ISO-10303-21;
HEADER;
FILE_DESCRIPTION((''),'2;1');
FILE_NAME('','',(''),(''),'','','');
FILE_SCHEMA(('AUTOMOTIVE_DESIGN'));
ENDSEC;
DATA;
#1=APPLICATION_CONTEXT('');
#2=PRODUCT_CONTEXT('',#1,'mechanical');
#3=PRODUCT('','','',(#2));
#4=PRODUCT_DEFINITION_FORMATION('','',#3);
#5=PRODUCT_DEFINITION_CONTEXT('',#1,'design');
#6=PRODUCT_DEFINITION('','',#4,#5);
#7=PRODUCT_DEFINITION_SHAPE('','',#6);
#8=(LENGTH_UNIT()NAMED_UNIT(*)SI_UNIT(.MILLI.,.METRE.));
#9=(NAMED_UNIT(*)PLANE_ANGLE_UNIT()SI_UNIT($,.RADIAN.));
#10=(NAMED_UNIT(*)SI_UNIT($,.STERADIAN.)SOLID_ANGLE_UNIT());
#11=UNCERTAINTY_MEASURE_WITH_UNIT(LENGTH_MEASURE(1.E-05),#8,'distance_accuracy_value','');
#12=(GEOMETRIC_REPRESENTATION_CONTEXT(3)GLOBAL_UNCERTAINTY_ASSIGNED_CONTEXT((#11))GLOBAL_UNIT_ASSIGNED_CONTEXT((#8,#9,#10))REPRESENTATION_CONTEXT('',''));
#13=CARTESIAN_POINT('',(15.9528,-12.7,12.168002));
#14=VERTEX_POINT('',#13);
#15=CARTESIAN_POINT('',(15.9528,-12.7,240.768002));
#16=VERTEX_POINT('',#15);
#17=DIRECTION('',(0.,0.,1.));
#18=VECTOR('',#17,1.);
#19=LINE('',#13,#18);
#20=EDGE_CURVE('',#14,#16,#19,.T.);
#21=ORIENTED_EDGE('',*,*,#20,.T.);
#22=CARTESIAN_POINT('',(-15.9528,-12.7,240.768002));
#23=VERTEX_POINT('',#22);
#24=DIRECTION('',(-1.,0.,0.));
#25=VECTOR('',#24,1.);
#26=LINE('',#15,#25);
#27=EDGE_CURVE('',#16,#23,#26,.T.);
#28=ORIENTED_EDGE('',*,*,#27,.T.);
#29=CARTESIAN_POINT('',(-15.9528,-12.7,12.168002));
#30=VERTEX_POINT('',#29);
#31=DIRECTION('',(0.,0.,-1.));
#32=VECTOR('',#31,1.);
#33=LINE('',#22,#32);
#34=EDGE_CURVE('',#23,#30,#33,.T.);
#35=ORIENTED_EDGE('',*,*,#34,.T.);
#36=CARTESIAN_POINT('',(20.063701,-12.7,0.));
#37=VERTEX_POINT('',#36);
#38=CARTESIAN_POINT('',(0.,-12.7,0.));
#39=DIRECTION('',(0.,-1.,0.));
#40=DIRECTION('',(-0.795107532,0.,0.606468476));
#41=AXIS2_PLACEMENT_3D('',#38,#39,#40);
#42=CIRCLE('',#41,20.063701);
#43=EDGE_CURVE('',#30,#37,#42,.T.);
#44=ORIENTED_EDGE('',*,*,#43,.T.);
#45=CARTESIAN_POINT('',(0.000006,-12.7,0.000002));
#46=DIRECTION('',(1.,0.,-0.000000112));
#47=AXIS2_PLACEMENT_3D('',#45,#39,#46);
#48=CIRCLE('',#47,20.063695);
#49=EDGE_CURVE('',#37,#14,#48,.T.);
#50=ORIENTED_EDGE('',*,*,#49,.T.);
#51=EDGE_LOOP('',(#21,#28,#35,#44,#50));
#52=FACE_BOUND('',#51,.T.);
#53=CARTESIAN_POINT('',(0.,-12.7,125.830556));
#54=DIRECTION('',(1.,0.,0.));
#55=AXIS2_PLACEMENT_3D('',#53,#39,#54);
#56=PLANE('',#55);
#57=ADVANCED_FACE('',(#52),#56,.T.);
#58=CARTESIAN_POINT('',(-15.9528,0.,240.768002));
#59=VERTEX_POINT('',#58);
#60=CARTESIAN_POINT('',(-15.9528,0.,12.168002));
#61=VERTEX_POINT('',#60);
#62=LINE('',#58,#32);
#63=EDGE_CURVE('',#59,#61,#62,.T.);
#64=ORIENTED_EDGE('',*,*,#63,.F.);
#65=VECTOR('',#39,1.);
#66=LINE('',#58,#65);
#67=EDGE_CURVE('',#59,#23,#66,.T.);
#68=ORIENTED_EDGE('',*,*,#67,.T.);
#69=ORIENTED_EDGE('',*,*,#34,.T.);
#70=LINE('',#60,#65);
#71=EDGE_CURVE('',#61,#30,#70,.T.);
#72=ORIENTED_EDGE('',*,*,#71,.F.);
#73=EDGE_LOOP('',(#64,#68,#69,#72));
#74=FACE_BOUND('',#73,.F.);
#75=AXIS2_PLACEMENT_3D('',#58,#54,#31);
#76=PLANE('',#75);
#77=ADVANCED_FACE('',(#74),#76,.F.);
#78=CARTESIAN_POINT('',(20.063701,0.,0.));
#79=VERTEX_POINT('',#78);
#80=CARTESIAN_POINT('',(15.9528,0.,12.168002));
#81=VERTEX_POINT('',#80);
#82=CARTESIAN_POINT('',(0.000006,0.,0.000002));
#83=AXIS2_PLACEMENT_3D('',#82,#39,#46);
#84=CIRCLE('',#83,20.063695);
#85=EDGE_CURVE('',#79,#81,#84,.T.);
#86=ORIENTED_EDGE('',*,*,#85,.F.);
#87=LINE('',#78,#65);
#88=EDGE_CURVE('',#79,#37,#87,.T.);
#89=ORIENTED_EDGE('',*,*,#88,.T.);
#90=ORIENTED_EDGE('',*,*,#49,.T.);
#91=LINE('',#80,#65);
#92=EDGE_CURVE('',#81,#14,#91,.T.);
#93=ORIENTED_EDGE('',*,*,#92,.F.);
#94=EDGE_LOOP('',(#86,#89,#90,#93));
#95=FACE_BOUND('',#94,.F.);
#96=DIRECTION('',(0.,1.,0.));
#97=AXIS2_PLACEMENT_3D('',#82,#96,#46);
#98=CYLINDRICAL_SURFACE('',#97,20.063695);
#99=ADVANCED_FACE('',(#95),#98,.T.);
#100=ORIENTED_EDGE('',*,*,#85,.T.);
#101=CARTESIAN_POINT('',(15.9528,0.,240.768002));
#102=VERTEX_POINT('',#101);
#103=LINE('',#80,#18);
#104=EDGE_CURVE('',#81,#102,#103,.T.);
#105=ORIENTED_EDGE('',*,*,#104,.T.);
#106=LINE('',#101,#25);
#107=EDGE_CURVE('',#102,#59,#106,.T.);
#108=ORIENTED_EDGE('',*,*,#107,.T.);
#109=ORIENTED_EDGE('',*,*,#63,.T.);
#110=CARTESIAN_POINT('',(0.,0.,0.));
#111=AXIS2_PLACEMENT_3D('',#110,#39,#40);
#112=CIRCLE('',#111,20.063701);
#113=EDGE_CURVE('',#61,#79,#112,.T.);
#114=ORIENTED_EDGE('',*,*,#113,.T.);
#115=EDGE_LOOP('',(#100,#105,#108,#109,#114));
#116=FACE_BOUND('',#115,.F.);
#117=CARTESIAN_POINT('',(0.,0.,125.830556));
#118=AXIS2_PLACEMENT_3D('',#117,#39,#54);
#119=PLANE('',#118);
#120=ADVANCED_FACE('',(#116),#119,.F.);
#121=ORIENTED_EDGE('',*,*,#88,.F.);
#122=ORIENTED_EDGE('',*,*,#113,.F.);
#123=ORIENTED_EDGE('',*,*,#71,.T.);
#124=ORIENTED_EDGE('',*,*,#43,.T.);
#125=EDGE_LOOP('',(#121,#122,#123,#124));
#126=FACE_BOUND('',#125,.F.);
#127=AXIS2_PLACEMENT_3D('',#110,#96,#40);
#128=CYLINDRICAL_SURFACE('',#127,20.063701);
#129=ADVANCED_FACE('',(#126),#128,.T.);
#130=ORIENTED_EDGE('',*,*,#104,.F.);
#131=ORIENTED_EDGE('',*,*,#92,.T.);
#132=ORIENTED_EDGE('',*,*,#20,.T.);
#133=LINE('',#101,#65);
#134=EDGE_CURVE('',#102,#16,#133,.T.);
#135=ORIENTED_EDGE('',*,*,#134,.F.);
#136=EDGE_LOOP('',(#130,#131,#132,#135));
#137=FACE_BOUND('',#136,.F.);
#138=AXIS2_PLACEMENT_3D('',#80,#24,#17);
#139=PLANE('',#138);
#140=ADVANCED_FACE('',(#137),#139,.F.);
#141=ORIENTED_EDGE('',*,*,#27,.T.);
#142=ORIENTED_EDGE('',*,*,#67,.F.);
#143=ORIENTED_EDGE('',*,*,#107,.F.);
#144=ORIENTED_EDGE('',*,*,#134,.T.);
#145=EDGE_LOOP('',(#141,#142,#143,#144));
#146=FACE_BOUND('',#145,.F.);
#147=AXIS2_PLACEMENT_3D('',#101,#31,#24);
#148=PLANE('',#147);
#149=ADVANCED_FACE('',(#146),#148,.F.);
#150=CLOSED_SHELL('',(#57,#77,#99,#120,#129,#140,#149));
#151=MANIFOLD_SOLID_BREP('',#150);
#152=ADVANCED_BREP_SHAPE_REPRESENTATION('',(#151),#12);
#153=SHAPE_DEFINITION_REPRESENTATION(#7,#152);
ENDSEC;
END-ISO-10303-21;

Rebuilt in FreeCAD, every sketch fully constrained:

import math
import FreeCAD as App
import Part
import Sketcher
Q = App.Units.Quantity

doc = App.newDocument("Part")
body = doc.addObject("PartDesign::Body", "Body")

# Sketch on XZ plane
sketch1 = body.newObject("Sketcher::SketchObject", "Sketch")
sketch1.AttachmentSupport = (doc.getObject("XZ_Plane"), [""])
sketch1.MapMode = "FlatFace"
sketch1.addGeometry(Part.LineSegment(App.Vector(16, 12, 0), App.Vector(16, 241, 0)), False)
sketch1.addGeometry(Part.LineSegment(App.Vector(16, 241, 0), App.Vector(-16, 241, 0)), False)
sketch1.addGeometry(Part.LineSegment(App.Vector(-16, 241, 0), App.Vector(-16, 12, 0)), False)
sketch1.addGeometry(Part.ArcOfCircle(Part.Circle(App.Vector(0, 0, 0), App.Vector(0, 0, 1), 20), math.radians(143), math.radians(360)), False)
sketch1.addGeometry(Part.ArcOfCircle(Part.Circle(App.Vector(0, 0, 0), App.Vector(0, 0, 1), 20), math.radians(0), math.radians(37)), False)
sketch1.addConstraint(Sketcher.Constraint("Coincident", 0, 2, 1, 1))
sketch1.addConstraint(Sketcher.Constraint("Coincident", 1, 2, 2, 1))
sketch1.addConstraint(Sketcher.Constraint("Coincident", 2, 2, 3, 1))
sketch1.addConstraint(Sketcher.Constraint("Tangent", 3, 2, 4, 1))
sketch1.addConstraint(Sketcher.Constraint("Coincident", 4, 2, 0, 1))
sketch1.addConstraint(Sketcher.Constraint("Vertical", 0))
sketch1.addConstraint(Sketcher.Constraint("Horizontal", 1))
sketch1.addConstraint(Sketcher.Constraint("Vertical", 2))
sketch1.addConstraint(Sketcher.Constraint("Coincident", 3, 3, -1, 1))
sketch1.addConstraint(Sketcher.Constraint("Symmetric", 2, 2, 4, 2, -2))
sketch1.addConstraint(Sketcher.Constraint("PointOnObject", 3, 2, -1))
sketch1.addConstraint(Sketcher.Constraint("DistanceY", 0, 1, 0, 2, Q("9 in")))
sketch1.addConstraint(Sketcher.Constraint("Radius", 3, 20.063701))
sketch1.addConstraint(Sketcher.Constraint("DistanceX", 1, 2, 1, 1, 31.9056))
pad1 = body.newObject("PartDesign::Pad", "Pad")
pad1.Profile = sketch1
pad1.Length = Q("0.5 in")

doc.recompute()
